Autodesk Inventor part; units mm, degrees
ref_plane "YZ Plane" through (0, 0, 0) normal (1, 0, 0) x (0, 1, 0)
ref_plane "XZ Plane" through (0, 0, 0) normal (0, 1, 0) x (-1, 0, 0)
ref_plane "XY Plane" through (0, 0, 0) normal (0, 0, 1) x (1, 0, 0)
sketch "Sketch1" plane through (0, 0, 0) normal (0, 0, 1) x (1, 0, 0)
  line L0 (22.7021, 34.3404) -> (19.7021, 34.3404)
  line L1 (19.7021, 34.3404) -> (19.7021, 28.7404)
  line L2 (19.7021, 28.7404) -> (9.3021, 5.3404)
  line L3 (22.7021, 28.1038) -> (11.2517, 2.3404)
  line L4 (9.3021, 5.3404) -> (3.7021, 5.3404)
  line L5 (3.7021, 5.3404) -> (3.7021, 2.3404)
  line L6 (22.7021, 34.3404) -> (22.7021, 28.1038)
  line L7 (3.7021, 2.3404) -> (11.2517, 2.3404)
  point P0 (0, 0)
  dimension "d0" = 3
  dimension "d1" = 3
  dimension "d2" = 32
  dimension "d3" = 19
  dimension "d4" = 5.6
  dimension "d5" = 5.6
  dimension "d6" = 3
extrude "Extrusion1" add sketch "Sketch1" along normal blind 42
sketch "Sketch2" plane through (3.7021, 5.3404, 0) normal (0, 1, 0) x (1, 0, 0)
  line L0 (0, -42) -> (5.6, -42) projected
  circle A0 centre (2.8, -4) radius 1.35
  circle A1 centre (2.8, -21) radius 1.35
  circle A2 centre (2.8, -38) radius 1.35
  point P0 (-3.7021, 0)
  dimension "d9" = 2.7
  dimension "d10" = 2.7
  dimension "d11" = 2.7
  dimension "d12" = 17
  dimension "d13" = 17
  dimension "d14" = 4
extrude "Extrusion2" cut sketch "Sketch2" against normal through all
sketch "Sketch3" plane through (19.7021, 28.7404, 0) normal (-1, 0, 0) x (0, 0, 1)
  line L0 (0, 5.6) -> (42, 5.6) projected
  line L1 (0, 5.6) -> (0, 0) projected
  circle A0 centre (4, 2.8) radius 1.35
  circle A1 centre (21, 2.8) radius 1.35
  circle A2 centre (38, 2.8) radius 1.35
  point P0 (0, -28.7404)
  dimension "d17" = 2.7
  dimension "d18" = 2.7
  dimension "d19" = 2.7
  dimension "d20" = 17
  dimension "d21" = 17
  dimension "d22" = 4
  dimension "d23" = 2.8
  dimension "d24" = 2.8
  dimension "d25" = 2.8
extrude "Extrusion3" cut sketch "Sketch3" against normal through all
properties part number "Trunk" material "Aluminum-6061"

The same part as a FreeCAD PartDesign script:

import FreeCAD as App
import Part
import Sketcher
Q = App.Units.Quantity


def add_polygon(sketch, points):
    """Adds a closed chain of lines whose ends are joined by coincident constraints."""
    first, n = sketch.GeometryCount, len(points)
    for a, b in zip(points, points[1:] + points[:1]):
        sketch.addGeometry(Part.LineSegment(App.Vector(*a, 0), App.Vector(*b, 0)), False)
    for i in range(n):
        sketch.addConstraint(Sketcher.Constraint("Coincident", first + i, 2, first + (i + 1) % n, 1))

doc = App.newDocument("Part")
body = doc.addObject("PartDesign::Body", "Body")

# Sketch on XY plane
sketch1 = body.newObject("Sketcher::SketchObject", "Sketch")
sketch1.AttachmentSupport = (doc.getObject("XY_Plane"), [""])
sketch1.MapMode = "FlatFace"
add_polygon(sketch1, [(22.7, 28.1), (22.7, 34.3), (19.7, 34.3), (19.7, 28.7), (9.3, 5.3), (3.7, 5.3), (3.7, 2.3), (11.3, 2.3)])  # lines 0-7
sketch1.addConstraint([
    Sketcher.Constraint("Vertical", 0),
    Sketcher.Constraint("Horizontal", 1),
    Sketcher.Constraint("Vertical", 2),
    Sketcher.Constraint("Horizontal", 4),
    Sketcher.Constraint("Vertical", 5),
    Sketcher.Constraint("Horizontal", 6),
    Sketcher.Constraint("Parallel", 3, 7),
    Sketcher.Constraint("Equal", 4, 2),
    Sketcher.Constraint("Equal", 1, 5),
    Sketcher.Constraint("DistanceX", 1, 2, 1, 1, Q("3 mm")),
    Sketcher.Constraint("DistanceX", 4, 2, 4, 1, Q("5.6 mm")),
    Sketcher.Constraint("DistanceX", 4, 2, 0, 2, Q("19 mm")),
    Sketcher.Constraint("DistanceY", 5, 2, 1, 2, Q("32 mm")),
    Sketcher.Constraint("DistanceX", 6, 1, 6, 2, Q("7.5496 mm")),
    Sketcher.Constraint("DistanceX", -1, 1, 0, 2, Q("22.702 mm")),
    Sketcher.Constraint("DistanceY", -1, 1, 0, 2, Q("34.3404 mm")),
])
pad1 = body.newObject("PartDesign::Pad", "Pad")
pad1.Profile = sketch1
pad1.Length = 42

# Sketch on XZ plane
sketch2 = body.newObject("Sketcher::SketchObject", "Sketch001")
sketch2.AttachmentSupport = (doc.getObject("XZ_Plane"), [""])
sketch2.MapMode = "FlatFace"
sketch2.AttachmentOffset = App.Placement(App.Vector(0, 0, -5.3404), App.Rotation())
sketch2.addGeometry([
    Part.Circle(App.Vector(6.5, 4, 0), App.Vector(0, 0, 1), 1.4),
    Part.Circle(App.Vector(6.5, 21, 0), App.Vector(0, 0, 1), 1.4),
    Part.Circle(App.Vector(6.5, 38, 0), App.Vector(0, 0, 1), 1.4),
], False)
sketch2.addConstraint([
    Sketcher.Constraint("Equal", 0, 1),
    Sketcher.Constraint("Equal", 1, 2),
    Sketcher.Constraint("Vertical", 0, 3, 1, 3),
    Sketcher.Constraint("Vertical", 1, 3, 2, 3),
    Sketcher.Constraint("Diameter", 0, Q("2.7 mm")),
    Sketcher.Constraint("DistanceY", -1, 1, 0, 3, Q("4 mm")),
    Sketcher.Constraint("DistanceY", 0, 3, 1, 3, Q("17 mm")),
    Sketcher.Constraint("DistanceY", 1, 3, 2, 3, Q("17 mm")),
    Sketcher.Constraint("DistanceX", -1, 1, 0, 3, Q("6.502 mm")),
])
pocket1 = body.newObject("PartDesign::Pocket", "Pocket")
pocket1.Profile = sketch2
pocket1.Type = "ThroughAll"
pocket1.Reversed = True

# Sketch on YZ plane
sketch3 = body.newObject("Sketcher::SketchObject", "Sketch002")
sketch3.AttachmentSupport = (doc.getObject("YZ_Plane"), [""])
sketch3.MapMode = "FlatFace"
sketch3.AttachmentOffset = App.Placement(App.Vector(0, 0, 19.7021), App.Rotation())
sketch3.addGeometry([
    Part.Circle(App.Vector(31.5, 4, 0), App.Vector(0, 0, 1), 1.4),
    Part.Circle(App.Vector(31.5, 21, 0), App.Vector(0, 0, 1), 1.4),
    Part.Circle(App.Vector(31.5, 38, 0), App.Vector(0, 0, 1), 1.4),
], False)
sketch3.addConstraint([
    Sketcher.Constraint("Equal", 0, 1),
    Sketcher.Constraint("Equal", 1, 2),
    Sketcher.Constraint("Vertical", 0, 3, 1, 3),
    Sketcher.Constraint("Vertical", 1, 3, 2, 3),
    Sketcher.Constraint("Diameter", 0, Q("2.7 mm")),
    Sketcher.Constraint("DistanceY", -1, 1, 0, 3, Q("4 mm")),
    Sketcher.Constraint("DistanceY", 0, 3, 1, 3, Q("17 mm")),
    Sketcher.Constraint("DistanceY", 1, 3, 2, 3, Q("17 mm")),
    Sketcher.Constraint("DistanceX", -1, 1, 0, 3, Q("31.5404 mm")),
])
pocket2 = body.newObject("PartDesign::Pocket", "Pocket001")
pocket2.Profile = sketch3
pocket2.Type = "ThroughAll"
pocket2.Reversed = True

doc.recompute()
